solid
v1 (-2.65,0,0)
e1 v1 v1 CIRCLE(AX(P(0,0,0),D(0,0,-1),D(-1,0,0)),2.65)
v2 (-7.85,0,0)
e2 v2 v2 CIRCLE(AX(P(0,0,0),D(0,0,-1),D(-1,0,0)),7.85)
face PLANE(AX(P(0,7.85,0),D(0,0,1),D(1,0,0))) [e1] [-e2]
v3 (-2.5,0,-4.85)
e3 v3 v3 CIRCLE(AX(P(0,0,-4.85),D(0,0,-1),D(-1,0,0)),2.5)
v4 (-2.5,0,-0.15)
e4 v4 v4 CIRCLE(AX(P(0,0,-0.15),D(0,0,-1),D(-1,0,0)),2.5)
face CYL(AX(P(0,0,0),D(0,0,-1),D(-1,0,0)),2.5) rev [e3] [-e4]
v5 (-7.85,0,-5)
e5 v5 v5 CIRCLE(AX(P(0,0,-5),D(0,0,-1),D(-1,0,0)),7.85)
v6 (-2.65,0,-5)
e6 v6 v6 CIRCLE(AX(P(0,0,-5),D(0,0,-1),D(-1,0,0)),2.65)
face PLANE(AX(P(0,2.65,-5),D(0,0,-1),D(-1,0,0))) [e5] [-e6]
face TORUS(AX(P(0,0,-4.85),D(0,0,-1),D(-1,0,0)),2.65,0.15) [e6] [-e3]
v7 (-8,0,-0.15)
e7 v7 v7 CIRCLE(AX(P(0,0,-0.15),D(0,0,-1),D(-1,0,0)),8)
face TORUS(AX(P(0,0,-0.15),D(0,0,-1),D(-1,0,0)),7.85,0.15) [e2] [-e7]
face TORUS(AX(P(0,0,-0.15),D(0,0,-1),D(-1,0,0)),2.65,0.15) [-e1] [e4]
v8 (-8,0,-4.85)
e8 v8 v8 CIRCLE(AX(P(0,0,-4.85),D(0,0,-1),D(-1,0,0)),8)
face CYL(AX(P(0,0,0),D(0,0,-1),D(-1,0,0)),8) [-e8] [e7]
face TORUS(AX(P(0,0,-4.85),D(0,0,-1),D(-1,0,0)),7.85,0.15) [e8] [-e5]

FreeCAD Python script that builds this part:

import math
import FreeCAD as App
import Part
import Sketcher
from FreeCAD import Vector
Q = App.Units.Quantity

doc = App.newDocument("Part")
params = doc.addObject("Spreadsheet::Sheet", "Params")
for row, (alias, value) in enumerate([
    ("sketch1_radius", "0.15 mm"),
    ("sketch1_width", "5.2 mm"),
    ("sketch1_height", "4.7 mm"),
    ("revolution_angle", "360 deg"),
], start=1):
    params.set(f"A{row}", alias)
    params.set(f"B{row}", "=" + value)
    params.setAlias(f"B{row}", alias)

body = doc.addObject("PartDesign::Body", "Body")

sketch1 = body.newObject("Sketcher::SketchObject", "Sketch")
sketch1.AttachmentSupport = (doc.getObject("YZ_Plane"), [""])
sketch1.MapMode = "FlatFace"
sketch1.addGeometry(Part.LineSegment(Vector(2.65, -5, 0), Vector(7.85, -5, 0)), False)
sketch1.addGeometry(Part.ArcOfCircle(Part.Circle(Vector(7.85, -4.85, 0), Vector(0, 0, 1), 0.15), math.radians(-90), math.radians(0)), False)
sketch1.addGeometry(Part.LineSegment(Vector(8, -4.85, 0), Vector(8, -0.15, 0)), False)
sketch1.addGeometry(Part.ArcOfCircle(Part.Circle(Vector(7.85, -0.15, 0), Vector(0, 0, 1), 0.15), math.radians(0), math.radians(90)), False)
sketch1.addGeometry(Part.LineSegment(Vector(7.85, 0, 0), Vector(2.65, 0, 0)), False)
sketch1.addGeometry(Part.ArcOfCircle(Part.Circle(Vector(2.65, -0.15, 0), Vector(0, 0, 1), 0.15), math.radians(90), math.radians(180)), False)
sketch1.addGeometry(Part.LineSegment(Vector(2.5, -0.15, 0), Vector(2.5, -4.85, 0)), False)
sketch1.addGeometry(Part.ArcOfCircle(Part.Circle(Vector(2.65, -4.85, 0), Vector(0, 0, 1), 0.15), math.radians(-180), math.radians(-90)), False)
sketch1.addConstraint(Sketcher.Constraint("Tangent", 0, 2, 1, 1))
sketch1.addConstraint(Sketcher.Constraint("Tangent", 1, 2, 2, 1))
sketch1.addConstraint(Sketcher.Constraint("Tangent", 2, 2, 3, 1))
sketch1.addConstraint(Sketcher.Constraint("Tangent", 3, 2, 4, 1))
sketch1.addConstraint(Sketcher.Constraint("Tangent", 4, 2, 5, 1))
sketch1.addConstraint(Sketcher.Constraint("Tangent", 5, 2, 6, 1))
sketch1.addConstraint(Sketcher.Constraint("Tangent", 6, 2, 7, 1))
sketch1.addConstraint(Sketcher.Constraint("Tangent", 7, 2, 0, 1))
sketch1.addConstraint(Sketcher.Constraint("Horizontal", 0))
sketch1.addConstraint(Sketcher.Constraint("Vertical", 2))
sketch1.addConstraint(Sketcher.Constraint("Horizontal", 4))
sketch1.addConstraint(Sketcher.Constraint("Vertical", 6))
sketch1.addConstraint(Sketcher.Constraint("Equal", 1, 3))
sketch1.addConstraint(Sketcher.Constraint("Equal", 3, 5))
sketch1.addConstraint(Sketcher.Constraint("Equal", 5, 7))
sketch1.addConstraint(Sketcher.Constraint("PointOnObject", 3, 2, -1))
sketch1.addConstraint(Sketcher.Constraint("Radius", 1, Q("0.15 mm")))
sketch1.addConstraint(Sketcher.Constraint("DistanceX", 0, 1, 0, 2, Q("5.2 mm")))
sketch1.addConstraint(Sketcher.Constraint("DistanceY", 2, 1, 2, 2, Q("4.7 mm")))
sketch1.addConstraint(Sketcher.Constraint("DistanceX", -1, 1, 1, 2, Q("8 mm")))
sketch1.setExpression("Constraints[16]", "Params.sketch1_radius")
sketch1.setExpression("Constraints[17]", "Params.sketch1_width")
sketch1.setExpression("Constraints[18]", "Params.sketch1_height")
revolution = body.newObject("PartDesign::Revolution", "Revolution")
revolution.Profile = sketch1
revolution.ReferenceAxis = (sketch1, ["V_Axis"])
revolution.setExpression("Angle", "Params.revolution_angle")

doc.recompute()
